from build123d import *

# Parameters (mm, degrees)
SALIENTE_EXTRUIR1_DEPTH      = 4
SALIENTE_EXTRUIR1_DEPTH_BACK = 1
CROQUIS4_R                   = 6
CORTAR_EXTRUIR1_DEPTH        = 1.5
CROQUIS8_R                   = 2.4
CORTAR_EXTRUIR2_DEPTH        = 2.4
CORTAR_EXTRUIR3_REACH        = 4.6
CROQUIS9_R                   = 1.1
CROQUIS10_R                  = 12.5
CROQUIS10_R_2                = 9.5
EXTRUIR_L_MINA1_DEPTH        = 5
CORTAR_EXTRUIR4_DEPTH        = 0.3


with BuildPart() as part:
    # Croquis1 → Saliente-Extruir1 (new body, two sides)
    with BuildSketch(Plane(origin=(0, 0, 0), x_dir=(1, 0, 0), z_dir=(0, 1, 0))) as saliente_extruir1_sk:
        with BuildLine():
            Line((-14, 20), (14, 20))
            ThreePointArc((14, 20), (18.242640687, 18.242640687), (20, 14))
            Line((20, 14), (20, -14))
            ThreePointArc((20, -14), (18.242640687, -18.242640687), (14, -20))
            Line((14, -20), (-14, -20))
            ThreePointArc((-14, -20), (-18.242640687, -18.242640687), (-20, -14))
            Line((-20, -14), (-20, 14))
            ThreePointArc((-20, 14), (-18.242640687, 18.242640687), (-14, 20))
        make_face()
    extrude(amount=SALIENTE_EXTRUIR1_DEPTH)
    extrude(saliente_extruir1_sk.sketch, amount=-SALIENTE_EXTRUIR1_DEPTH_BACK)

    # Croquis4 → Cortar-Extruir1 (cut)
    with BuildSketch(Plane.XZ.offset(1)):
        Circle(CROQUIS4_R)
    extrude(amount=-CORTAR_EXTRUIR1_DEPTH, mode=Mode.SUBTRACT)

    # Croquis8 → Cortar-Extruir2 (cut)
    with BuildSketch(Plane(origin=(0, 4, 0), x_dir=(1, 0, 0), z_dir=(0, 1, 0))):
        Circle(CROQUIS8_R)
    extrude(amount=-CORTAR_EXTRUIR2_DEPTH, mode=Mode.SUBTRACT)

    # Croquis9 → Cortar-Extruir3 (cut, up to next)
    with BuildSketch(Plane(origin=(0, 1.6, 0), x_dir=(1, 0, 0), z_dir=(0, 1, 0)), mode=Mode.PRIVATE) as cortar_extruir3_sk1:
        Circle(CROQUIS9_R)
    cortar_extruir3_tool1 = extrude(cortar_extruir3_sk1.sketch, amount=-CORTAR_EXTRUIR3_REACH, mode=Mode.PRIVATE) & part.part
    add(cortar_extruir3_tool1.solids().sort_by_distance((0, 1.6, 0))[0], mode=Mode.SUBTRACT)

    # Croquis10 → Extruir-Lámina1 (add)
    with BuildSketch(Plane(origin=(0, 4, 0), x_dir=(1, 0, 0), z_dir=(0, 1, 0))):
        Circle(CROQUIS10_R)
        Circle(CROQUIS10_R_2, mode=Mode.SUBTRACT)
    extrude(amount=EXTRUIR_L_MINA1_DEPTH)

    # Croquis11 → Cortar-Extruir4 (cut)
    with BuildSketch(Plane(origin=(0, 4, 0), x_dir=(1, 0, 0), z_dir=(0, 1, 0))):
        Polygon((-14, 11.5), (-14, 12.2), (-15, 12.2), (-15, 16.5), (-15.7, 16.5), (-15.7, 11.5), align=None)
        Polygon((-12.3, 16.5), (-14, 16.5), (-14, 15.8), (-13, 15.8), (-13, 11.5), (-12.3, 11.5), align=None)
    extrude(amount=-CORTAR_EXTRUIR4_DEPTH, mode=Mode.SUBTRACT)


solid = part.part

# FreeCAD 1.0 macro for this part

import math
import FreeCAD as App
import Part
import Sketcher
from FreeCAD import Vector
Q = App.Units.Quantity


def add_polygon(sketch, points):
    """Adds a closed chain of lines whose ends are joined by coincident constraints."""
    first, n = sketch.GeometryCount, len(points)
    for a, b in zip(points, points[1:] + points[:1]):
        sketch.addGeometry(Part.LineSegment(App.Vector(*a, 0), App.Vector(*b, 0)), False)
    for i in range(n):
        sketch.addConstraint(Sketcher.Constraint("Coincident", first + i, 2, first + (i + 1) % n, 1))

doc = App.newDocument("Part")
params = doc.addObject("Spreadsheet::Sheet", "Params")
for row, (alias, value) in enumerate([
    ("sketch1_radius", "6 mm"),
    ("sketch1_width", "28 mm"),
    ("pad1_length", "4 mm"),
    ("pad1_length2", "1 mm"),
    ("sketch2_diameter", "12 mm"),
    ("pocket1_length", "1.5 mm"),
    ("sketch3_diameter", "4.8 mm"),
    ("pocket2_length", "2.4 mm"),
    ("sketch4_diameter", "2.2 mm"),
    ("sketch5_diameter", "25 mm"),
    ("sketch5_diameter2", "19 mm"),
    ("pad2_length", "5 mm"),
    ("sketch6_width", "1 mm"),
    ("sketch6_height", "5 mm"),
    ("sketch6_width2", "0.7 mm"),
    ("pocket4_length", "0.3 mm"),
], start=1):
    params.set(f"A{row}", alias)
    params.set(f"B{row}", "=" + value)
    params.setAlias(f"B{row}", alias)

body = doc.addObject("PartDesign::Body", "Body")

# Sketch on XZ plane
sketch1 = body.newObject("Sketcher::SketchObject", "Sketch")
sketch1.AttachmentSupport = (doc.getObject("XZ_Plane"), [""])
sketch1.MapMode = "FlatFace"
sketch1.addGeometry(Part.LineSegment(Vector(14, -20, 0), Vector(-14, -20, 0)), False)
sketch1.addGeometry(Part.ArcOfCircle(Part.Circle(Vector(-14, -14, 0), Vector(0, 0, 1), 6), math.radians(180), math.radians(270)), False)
sketch1.addGeometry(Part.LineSegment(Vector(-20, -14, 0), Vector(-20, 14, 0)), False)
sketch1.addGeometry(Part.ArcOfCircle(Part.Circle(Vector(-14, 14, 0), Vector(0, 0, 1), 6), math.radians(90), math.radians(180)), False)
sketch1.addGeometry(Part.LineSegment(Vector(-14, 20, 0), Vector(14, 20, 0)), False)
sketch1.addGeometry(Part.ArcOfCircle(Part.Circle(Vector(14, 14, 0), Vector(0, 0, 1), 6), math.radians(0), math.radians(90)), False)
sketch1.addGeometry(Part.LineSegment(Vector(20, 14, 0), Vector(20, -14, 0)), False)
sketch1.addGeometry(Part.ArcOfCircle(Part.Circle(Vector(14, -14, 0), Vector(0, 0, 1), 6), math.radians(-90), math.radians(0)), False)
sketch1.addConstraint(Sketcher.Constraint("Tangent", 0, 2, 1, 2))
sketch1.addConstraint(Sketcher.Constraint("Tangent", 1, 1, 2, 1))
sketch1.addConstraint(Sketcher.Constraint("Tangent", 2, 2, 3, 2))
sketch1.addConstraint(Sketcher.Constraint("Tangent", 3, 1, 4, 1))
sketch1.addConstraint(Sketcher.Constraint("Tangent", 4, 2, 5, 2))
sketch1.addConstraint(Sketcher.Constraint("Tangent", 5, 1, 6, 1))
sketch1.addConstraint(Sketcher.Constraint("Tangent", 6, 2, 7, 2))
sketch1.addConstraint(Sketcher.Constraint("Tangent", 7, 1, 0, 1))
sketch1.addConstraint(Sketcher.Constraint("Horizontal", 0))
sketch1.addConstraint(Sketcher.Constraint("Vertical", 2))
sketch1.addConstraint(Sketcher.Constraint("Horizontal", 4))
sketch1.addConstraint(Sketcher.Constraint("Vertical", 6))
sketch1.addConstraint(Sketcher.Constraint("Equal", 1, 3))
sketch1.addConstraint(Sketcher.Constraint("Equal", 3, 5))
sketch1.addConstraint(Sketcher.Constraint("Equal", 5, 7))
sketch1.addConstraint(Sketcher.Constraint("Symmetric", 1, 3, 5, 3, -1, 1))
sketch1.addConstraint(Sketcher.Constraint("Equal", 4, 2))
sketch1.addConstraint(Sketcher.Constraint("Radius", 1, Q("6 mm")))
sketch1.addConstraint(Sketcher.Constraint("DistanceX", 0, 2, 0, 1, Q("28 mm")))
sketch1.setExpression("Constraints[17]", "Params.sketch1_radius")
sketch1.setExpression("Constraints[18]", "Params.sketch1_width")
pad1 = body.newObject("PartDesign::Pad", "Pad")
pad1.Profile = sketch1
pad1.Type = "TwoLengths"
pad1.setExpression("Length", "Params.pad1_length")
pad1.setExpression("Length2", "Params.pad1_length2")
pad1.Reversed = True

# Sketch on XZ plane
sketch2 = body.newObject("Sketcher::SketchObject", "Sketch001")
sketch2.AttachmentSupport = (doc.getObject("XZ_Plane"), [""])
sketch2.MapMode = "FlatFace"
sketch2.AttachmentOffset = App.Placement(Vector(0, 0, 1), App.Rotation())
sketch2.addGeometry(Part.Circle(Vector(0, 0, 0), Vector(0, 0, 1), 6), False)
sketch2.addConstraint(Sketcher.Constraint("Coincident", 0, 3, -1, 1))
sketch2.addConstraint(Sketcher.Constraint("Diameter", 0, Q("12 mm")))
sketch2.setExpression("Constraints[1]", "Params.sketch2_diameter")
pocket1 = body.newObject("PartDesign::Pocket", "Pocket")
pocket1.Profile = sketch2
pocket1.setExpression("Length", "Params.pocket1_length")

# Sketch on XZ plane
sketch3 = body.newObject("Sketcher::SketchObject", "Sketch002")
sketch3.AttachmentSupport = (doc.getObject("XZ_Plane"), [""])
sketch3.MapMode = "FlatFace"
sketch3.AttachmentOffset = App.Placement(Vector(0, 0, -4), App.Rotation())
sketch3.addGeometry(Part.Circle(Vector(0, 0, 0), Vector(0, 0, 1), 2.4), False)
sketch3.addConstraint(Sketcher.Constraint("Coincident", 0, 3, -1, 1))
sketch3.addConstraint(Sketcher.Constraint("Diameter", 0, Q("4.8 mm")))
sketch3.setExpression("Constraints[1]", "Params.sketch3_diameter")
pocket2 = body.newObject("PartDesign::Pocket", "Pocket001")
pocket2.Profile = sketch3
pocket2.setExpression("Length", "Params.pocket2_length")
pocket2.Reversed = True

# Sketch on XZ plane
sketch4 = body.newObject("Sketcher::SketchObject", "Sketch003")
sketch4.AttachmentSupport = (doc.getObject("XZ_Plane"), [""])
sketch4.MapMode = "FlatFace"
sketch4.AttachmentOffset = App.Placement(Vector(0, 0, -1.6), App.Rotation())
sketch4.addGeometry(Part.Circle(Vector(0, 0, 0), Vector(0, 0, 1), 1.1), False)
sketch4.addConstraint(Sketcher.Constraint("Coincident", 0, 3, -1, 1))
sketch4.addConstraint(Sketcher.Constraint("Diameter", 0, Q("2.2 mm")))
sketch4.setExpression("Constraints[1]", "Params.sketch4_diameter")
pocket3 = body.newObject("PartDesign::Pocket", "Pocket002")
pocket3.Profile = sketch4
pocket3.Type = "UpToFirst"
pocket3.Reversed = True

# Sketch on XZ plane
sketch5 = body.newObject("Sketcher::SketchObject", "Sketch004")
sketch5.AttachmentSupport = (doc.getObject("XZ_Plane"), [""])
sketch5.MapMode = "FlatFace"
sketch5.AttachmentOffset = App.Placement(Vector(0, 0, -4), App.Rotation())
sketch5.addGeometry(Part.Circle(Vector(0, 0, 0), Vector(0, 0, 1), 12), False)
sketch5.addGeometry(Part.Circle(Vector(0, 0, 0), Vector(0, 0, 1), 10), False)
sketch5.addConstraint(Sketcher.Constraint("Coincident", 0, 3, -1, 1))
sketch5.addConstraint(Sketcher.Constraint("Coincident", 1, 3, -1, 1))
sketch5.addConstraint(Sketcher.Constraint("Diameter", 0, Q("25 mm")))
sketch5.addConstraint(Sketcher.Constraint("Diameter", 1, Q("19 mm")))
sketch5.setExpression("Constraints[2]", "Params.sketch5_diameter")
sketch5.setExpression("Constraints[3]", "Params.sketch5_diameter2")
pad2 = body.newObject("PartDesign::Pad", "Pad001")
pad2.Profile = sketch5
pad2.setExpression("Length", "Params.pad2_length")
pad2.Reversed = True

# Sketch on XZ plane
sketch6 = body.newObject("Sketcher::SketchObject", "Sketch005")
sketch6.AttachmentSupport = (doc.getObject("XZ_Plane"), [""])
sketch6.MapMode = "FlatFace"
sketch6.AttachmentOffset = App.Placement(Vector(0, 0, -4), App.Rotation())
add_polygon(sketch6, [(-14, -11.5), (-14, -12.2), (-15, -12.2), (-15, -16.5), (-15.7, -16.5), (-15.7, -11.5)])  # lines 0-5
add_polygon(sketch6, [(-12.3, -16.5), (-14, -16.5), (-14, -15.8), (-13, -15.8), (-13, -11.5), (-12.3, -11.5)])  # lines 6-11
sketch6.addConstraint(Sketcher.Constraint("Vertical", 0))
sketch6.addConstraint(Sketcher.Constraint("Horizontal", 1))
sketch6.addConstraint(Sketcher.Constraint("Vertical", 2))
sketch6.addConstraint(Sketcher.Constraint("Horizontal", 3))
sketch6.addConstraint(Sketcher.Constraint("Vertical", 4))
sketch6.addConstraint(Sketcher.Constraint("Horizontal", 5))
sketch6.addConstraint(Sketcher.Constraint("Horizontal", 6))
sketch6.addConstraint(Sketcher.Constraint("Vertical", 7))
sketch6.addConstraint(Sketcher.Constraint("Horizontal", 8))
sketch6.addConstraint(Sketcher.Constraint("Vertical", 9))
sketch6.addConstraint(Sketcher.Constraint("Horizontal", 10))
sketch6.addConstraint(Sketcher.Constraint("Vertical", 11))
sketch6.addConstraint(Sketcher.Constraint("Horizontal", 3, 2, 6, 2))
sketch6.addConstraint(Sketcher.Constraint("Horizontal", 5, 2, 9, 2))
sketch6.addConstraint(Sketcher.Constraint("Vertical", 5, 2, 6, 2))
sketch6.addConstraint(Sketcher.Constraint("Equal", 5, 6))
sketch6.addConstraint(Sketcher.Constraint("Equal", 1, 8))
sketch6.addConstraint(Sketcher.Constraint("Equal", 10, 0))
sketch6.addConstraint(Sketcher.Constraint("Equal", 0, 7))
sketch6.addConstraint(Sketcher.Constraint("DistanceX", 1, 2, 1, 1, Q("1 mm")))
sketch6.addConstraint(Sketcher.Constraint("DistanceY", 4, 1, 4, 2, Q("5 mm")))
sketch6.addConstraint(Sketcher.Constraint("DistanceX", 3, 2, 3, 1, Q("0.7 mm")))
sketch6.addConstraint(Sketcher.Constraint("DistanceX", 0, 2, -1, 1, Q("14 mm")))
sketch6.addConstraint(Sketcher.Constraint("DistanceY", 0, 2, -1, 1, Q("12.2 mm")))
sketch6.setExpression("Constraints[31]", "Params.sketch6_width")
sketch6.setExpression("Constraints[32]", "Params.sketch6_height")
sketch6.setExpression("Constraints[33]", "Params.sketch6_width2")
pocket4 = body.newObject("PartDesign::Pocket", "Pocket003")
pocket4.Profile = sketch6
pocket4.setExpression("Length", "Params.pocket4_length")
pocket4.Reversed = True

doc.recompute()
